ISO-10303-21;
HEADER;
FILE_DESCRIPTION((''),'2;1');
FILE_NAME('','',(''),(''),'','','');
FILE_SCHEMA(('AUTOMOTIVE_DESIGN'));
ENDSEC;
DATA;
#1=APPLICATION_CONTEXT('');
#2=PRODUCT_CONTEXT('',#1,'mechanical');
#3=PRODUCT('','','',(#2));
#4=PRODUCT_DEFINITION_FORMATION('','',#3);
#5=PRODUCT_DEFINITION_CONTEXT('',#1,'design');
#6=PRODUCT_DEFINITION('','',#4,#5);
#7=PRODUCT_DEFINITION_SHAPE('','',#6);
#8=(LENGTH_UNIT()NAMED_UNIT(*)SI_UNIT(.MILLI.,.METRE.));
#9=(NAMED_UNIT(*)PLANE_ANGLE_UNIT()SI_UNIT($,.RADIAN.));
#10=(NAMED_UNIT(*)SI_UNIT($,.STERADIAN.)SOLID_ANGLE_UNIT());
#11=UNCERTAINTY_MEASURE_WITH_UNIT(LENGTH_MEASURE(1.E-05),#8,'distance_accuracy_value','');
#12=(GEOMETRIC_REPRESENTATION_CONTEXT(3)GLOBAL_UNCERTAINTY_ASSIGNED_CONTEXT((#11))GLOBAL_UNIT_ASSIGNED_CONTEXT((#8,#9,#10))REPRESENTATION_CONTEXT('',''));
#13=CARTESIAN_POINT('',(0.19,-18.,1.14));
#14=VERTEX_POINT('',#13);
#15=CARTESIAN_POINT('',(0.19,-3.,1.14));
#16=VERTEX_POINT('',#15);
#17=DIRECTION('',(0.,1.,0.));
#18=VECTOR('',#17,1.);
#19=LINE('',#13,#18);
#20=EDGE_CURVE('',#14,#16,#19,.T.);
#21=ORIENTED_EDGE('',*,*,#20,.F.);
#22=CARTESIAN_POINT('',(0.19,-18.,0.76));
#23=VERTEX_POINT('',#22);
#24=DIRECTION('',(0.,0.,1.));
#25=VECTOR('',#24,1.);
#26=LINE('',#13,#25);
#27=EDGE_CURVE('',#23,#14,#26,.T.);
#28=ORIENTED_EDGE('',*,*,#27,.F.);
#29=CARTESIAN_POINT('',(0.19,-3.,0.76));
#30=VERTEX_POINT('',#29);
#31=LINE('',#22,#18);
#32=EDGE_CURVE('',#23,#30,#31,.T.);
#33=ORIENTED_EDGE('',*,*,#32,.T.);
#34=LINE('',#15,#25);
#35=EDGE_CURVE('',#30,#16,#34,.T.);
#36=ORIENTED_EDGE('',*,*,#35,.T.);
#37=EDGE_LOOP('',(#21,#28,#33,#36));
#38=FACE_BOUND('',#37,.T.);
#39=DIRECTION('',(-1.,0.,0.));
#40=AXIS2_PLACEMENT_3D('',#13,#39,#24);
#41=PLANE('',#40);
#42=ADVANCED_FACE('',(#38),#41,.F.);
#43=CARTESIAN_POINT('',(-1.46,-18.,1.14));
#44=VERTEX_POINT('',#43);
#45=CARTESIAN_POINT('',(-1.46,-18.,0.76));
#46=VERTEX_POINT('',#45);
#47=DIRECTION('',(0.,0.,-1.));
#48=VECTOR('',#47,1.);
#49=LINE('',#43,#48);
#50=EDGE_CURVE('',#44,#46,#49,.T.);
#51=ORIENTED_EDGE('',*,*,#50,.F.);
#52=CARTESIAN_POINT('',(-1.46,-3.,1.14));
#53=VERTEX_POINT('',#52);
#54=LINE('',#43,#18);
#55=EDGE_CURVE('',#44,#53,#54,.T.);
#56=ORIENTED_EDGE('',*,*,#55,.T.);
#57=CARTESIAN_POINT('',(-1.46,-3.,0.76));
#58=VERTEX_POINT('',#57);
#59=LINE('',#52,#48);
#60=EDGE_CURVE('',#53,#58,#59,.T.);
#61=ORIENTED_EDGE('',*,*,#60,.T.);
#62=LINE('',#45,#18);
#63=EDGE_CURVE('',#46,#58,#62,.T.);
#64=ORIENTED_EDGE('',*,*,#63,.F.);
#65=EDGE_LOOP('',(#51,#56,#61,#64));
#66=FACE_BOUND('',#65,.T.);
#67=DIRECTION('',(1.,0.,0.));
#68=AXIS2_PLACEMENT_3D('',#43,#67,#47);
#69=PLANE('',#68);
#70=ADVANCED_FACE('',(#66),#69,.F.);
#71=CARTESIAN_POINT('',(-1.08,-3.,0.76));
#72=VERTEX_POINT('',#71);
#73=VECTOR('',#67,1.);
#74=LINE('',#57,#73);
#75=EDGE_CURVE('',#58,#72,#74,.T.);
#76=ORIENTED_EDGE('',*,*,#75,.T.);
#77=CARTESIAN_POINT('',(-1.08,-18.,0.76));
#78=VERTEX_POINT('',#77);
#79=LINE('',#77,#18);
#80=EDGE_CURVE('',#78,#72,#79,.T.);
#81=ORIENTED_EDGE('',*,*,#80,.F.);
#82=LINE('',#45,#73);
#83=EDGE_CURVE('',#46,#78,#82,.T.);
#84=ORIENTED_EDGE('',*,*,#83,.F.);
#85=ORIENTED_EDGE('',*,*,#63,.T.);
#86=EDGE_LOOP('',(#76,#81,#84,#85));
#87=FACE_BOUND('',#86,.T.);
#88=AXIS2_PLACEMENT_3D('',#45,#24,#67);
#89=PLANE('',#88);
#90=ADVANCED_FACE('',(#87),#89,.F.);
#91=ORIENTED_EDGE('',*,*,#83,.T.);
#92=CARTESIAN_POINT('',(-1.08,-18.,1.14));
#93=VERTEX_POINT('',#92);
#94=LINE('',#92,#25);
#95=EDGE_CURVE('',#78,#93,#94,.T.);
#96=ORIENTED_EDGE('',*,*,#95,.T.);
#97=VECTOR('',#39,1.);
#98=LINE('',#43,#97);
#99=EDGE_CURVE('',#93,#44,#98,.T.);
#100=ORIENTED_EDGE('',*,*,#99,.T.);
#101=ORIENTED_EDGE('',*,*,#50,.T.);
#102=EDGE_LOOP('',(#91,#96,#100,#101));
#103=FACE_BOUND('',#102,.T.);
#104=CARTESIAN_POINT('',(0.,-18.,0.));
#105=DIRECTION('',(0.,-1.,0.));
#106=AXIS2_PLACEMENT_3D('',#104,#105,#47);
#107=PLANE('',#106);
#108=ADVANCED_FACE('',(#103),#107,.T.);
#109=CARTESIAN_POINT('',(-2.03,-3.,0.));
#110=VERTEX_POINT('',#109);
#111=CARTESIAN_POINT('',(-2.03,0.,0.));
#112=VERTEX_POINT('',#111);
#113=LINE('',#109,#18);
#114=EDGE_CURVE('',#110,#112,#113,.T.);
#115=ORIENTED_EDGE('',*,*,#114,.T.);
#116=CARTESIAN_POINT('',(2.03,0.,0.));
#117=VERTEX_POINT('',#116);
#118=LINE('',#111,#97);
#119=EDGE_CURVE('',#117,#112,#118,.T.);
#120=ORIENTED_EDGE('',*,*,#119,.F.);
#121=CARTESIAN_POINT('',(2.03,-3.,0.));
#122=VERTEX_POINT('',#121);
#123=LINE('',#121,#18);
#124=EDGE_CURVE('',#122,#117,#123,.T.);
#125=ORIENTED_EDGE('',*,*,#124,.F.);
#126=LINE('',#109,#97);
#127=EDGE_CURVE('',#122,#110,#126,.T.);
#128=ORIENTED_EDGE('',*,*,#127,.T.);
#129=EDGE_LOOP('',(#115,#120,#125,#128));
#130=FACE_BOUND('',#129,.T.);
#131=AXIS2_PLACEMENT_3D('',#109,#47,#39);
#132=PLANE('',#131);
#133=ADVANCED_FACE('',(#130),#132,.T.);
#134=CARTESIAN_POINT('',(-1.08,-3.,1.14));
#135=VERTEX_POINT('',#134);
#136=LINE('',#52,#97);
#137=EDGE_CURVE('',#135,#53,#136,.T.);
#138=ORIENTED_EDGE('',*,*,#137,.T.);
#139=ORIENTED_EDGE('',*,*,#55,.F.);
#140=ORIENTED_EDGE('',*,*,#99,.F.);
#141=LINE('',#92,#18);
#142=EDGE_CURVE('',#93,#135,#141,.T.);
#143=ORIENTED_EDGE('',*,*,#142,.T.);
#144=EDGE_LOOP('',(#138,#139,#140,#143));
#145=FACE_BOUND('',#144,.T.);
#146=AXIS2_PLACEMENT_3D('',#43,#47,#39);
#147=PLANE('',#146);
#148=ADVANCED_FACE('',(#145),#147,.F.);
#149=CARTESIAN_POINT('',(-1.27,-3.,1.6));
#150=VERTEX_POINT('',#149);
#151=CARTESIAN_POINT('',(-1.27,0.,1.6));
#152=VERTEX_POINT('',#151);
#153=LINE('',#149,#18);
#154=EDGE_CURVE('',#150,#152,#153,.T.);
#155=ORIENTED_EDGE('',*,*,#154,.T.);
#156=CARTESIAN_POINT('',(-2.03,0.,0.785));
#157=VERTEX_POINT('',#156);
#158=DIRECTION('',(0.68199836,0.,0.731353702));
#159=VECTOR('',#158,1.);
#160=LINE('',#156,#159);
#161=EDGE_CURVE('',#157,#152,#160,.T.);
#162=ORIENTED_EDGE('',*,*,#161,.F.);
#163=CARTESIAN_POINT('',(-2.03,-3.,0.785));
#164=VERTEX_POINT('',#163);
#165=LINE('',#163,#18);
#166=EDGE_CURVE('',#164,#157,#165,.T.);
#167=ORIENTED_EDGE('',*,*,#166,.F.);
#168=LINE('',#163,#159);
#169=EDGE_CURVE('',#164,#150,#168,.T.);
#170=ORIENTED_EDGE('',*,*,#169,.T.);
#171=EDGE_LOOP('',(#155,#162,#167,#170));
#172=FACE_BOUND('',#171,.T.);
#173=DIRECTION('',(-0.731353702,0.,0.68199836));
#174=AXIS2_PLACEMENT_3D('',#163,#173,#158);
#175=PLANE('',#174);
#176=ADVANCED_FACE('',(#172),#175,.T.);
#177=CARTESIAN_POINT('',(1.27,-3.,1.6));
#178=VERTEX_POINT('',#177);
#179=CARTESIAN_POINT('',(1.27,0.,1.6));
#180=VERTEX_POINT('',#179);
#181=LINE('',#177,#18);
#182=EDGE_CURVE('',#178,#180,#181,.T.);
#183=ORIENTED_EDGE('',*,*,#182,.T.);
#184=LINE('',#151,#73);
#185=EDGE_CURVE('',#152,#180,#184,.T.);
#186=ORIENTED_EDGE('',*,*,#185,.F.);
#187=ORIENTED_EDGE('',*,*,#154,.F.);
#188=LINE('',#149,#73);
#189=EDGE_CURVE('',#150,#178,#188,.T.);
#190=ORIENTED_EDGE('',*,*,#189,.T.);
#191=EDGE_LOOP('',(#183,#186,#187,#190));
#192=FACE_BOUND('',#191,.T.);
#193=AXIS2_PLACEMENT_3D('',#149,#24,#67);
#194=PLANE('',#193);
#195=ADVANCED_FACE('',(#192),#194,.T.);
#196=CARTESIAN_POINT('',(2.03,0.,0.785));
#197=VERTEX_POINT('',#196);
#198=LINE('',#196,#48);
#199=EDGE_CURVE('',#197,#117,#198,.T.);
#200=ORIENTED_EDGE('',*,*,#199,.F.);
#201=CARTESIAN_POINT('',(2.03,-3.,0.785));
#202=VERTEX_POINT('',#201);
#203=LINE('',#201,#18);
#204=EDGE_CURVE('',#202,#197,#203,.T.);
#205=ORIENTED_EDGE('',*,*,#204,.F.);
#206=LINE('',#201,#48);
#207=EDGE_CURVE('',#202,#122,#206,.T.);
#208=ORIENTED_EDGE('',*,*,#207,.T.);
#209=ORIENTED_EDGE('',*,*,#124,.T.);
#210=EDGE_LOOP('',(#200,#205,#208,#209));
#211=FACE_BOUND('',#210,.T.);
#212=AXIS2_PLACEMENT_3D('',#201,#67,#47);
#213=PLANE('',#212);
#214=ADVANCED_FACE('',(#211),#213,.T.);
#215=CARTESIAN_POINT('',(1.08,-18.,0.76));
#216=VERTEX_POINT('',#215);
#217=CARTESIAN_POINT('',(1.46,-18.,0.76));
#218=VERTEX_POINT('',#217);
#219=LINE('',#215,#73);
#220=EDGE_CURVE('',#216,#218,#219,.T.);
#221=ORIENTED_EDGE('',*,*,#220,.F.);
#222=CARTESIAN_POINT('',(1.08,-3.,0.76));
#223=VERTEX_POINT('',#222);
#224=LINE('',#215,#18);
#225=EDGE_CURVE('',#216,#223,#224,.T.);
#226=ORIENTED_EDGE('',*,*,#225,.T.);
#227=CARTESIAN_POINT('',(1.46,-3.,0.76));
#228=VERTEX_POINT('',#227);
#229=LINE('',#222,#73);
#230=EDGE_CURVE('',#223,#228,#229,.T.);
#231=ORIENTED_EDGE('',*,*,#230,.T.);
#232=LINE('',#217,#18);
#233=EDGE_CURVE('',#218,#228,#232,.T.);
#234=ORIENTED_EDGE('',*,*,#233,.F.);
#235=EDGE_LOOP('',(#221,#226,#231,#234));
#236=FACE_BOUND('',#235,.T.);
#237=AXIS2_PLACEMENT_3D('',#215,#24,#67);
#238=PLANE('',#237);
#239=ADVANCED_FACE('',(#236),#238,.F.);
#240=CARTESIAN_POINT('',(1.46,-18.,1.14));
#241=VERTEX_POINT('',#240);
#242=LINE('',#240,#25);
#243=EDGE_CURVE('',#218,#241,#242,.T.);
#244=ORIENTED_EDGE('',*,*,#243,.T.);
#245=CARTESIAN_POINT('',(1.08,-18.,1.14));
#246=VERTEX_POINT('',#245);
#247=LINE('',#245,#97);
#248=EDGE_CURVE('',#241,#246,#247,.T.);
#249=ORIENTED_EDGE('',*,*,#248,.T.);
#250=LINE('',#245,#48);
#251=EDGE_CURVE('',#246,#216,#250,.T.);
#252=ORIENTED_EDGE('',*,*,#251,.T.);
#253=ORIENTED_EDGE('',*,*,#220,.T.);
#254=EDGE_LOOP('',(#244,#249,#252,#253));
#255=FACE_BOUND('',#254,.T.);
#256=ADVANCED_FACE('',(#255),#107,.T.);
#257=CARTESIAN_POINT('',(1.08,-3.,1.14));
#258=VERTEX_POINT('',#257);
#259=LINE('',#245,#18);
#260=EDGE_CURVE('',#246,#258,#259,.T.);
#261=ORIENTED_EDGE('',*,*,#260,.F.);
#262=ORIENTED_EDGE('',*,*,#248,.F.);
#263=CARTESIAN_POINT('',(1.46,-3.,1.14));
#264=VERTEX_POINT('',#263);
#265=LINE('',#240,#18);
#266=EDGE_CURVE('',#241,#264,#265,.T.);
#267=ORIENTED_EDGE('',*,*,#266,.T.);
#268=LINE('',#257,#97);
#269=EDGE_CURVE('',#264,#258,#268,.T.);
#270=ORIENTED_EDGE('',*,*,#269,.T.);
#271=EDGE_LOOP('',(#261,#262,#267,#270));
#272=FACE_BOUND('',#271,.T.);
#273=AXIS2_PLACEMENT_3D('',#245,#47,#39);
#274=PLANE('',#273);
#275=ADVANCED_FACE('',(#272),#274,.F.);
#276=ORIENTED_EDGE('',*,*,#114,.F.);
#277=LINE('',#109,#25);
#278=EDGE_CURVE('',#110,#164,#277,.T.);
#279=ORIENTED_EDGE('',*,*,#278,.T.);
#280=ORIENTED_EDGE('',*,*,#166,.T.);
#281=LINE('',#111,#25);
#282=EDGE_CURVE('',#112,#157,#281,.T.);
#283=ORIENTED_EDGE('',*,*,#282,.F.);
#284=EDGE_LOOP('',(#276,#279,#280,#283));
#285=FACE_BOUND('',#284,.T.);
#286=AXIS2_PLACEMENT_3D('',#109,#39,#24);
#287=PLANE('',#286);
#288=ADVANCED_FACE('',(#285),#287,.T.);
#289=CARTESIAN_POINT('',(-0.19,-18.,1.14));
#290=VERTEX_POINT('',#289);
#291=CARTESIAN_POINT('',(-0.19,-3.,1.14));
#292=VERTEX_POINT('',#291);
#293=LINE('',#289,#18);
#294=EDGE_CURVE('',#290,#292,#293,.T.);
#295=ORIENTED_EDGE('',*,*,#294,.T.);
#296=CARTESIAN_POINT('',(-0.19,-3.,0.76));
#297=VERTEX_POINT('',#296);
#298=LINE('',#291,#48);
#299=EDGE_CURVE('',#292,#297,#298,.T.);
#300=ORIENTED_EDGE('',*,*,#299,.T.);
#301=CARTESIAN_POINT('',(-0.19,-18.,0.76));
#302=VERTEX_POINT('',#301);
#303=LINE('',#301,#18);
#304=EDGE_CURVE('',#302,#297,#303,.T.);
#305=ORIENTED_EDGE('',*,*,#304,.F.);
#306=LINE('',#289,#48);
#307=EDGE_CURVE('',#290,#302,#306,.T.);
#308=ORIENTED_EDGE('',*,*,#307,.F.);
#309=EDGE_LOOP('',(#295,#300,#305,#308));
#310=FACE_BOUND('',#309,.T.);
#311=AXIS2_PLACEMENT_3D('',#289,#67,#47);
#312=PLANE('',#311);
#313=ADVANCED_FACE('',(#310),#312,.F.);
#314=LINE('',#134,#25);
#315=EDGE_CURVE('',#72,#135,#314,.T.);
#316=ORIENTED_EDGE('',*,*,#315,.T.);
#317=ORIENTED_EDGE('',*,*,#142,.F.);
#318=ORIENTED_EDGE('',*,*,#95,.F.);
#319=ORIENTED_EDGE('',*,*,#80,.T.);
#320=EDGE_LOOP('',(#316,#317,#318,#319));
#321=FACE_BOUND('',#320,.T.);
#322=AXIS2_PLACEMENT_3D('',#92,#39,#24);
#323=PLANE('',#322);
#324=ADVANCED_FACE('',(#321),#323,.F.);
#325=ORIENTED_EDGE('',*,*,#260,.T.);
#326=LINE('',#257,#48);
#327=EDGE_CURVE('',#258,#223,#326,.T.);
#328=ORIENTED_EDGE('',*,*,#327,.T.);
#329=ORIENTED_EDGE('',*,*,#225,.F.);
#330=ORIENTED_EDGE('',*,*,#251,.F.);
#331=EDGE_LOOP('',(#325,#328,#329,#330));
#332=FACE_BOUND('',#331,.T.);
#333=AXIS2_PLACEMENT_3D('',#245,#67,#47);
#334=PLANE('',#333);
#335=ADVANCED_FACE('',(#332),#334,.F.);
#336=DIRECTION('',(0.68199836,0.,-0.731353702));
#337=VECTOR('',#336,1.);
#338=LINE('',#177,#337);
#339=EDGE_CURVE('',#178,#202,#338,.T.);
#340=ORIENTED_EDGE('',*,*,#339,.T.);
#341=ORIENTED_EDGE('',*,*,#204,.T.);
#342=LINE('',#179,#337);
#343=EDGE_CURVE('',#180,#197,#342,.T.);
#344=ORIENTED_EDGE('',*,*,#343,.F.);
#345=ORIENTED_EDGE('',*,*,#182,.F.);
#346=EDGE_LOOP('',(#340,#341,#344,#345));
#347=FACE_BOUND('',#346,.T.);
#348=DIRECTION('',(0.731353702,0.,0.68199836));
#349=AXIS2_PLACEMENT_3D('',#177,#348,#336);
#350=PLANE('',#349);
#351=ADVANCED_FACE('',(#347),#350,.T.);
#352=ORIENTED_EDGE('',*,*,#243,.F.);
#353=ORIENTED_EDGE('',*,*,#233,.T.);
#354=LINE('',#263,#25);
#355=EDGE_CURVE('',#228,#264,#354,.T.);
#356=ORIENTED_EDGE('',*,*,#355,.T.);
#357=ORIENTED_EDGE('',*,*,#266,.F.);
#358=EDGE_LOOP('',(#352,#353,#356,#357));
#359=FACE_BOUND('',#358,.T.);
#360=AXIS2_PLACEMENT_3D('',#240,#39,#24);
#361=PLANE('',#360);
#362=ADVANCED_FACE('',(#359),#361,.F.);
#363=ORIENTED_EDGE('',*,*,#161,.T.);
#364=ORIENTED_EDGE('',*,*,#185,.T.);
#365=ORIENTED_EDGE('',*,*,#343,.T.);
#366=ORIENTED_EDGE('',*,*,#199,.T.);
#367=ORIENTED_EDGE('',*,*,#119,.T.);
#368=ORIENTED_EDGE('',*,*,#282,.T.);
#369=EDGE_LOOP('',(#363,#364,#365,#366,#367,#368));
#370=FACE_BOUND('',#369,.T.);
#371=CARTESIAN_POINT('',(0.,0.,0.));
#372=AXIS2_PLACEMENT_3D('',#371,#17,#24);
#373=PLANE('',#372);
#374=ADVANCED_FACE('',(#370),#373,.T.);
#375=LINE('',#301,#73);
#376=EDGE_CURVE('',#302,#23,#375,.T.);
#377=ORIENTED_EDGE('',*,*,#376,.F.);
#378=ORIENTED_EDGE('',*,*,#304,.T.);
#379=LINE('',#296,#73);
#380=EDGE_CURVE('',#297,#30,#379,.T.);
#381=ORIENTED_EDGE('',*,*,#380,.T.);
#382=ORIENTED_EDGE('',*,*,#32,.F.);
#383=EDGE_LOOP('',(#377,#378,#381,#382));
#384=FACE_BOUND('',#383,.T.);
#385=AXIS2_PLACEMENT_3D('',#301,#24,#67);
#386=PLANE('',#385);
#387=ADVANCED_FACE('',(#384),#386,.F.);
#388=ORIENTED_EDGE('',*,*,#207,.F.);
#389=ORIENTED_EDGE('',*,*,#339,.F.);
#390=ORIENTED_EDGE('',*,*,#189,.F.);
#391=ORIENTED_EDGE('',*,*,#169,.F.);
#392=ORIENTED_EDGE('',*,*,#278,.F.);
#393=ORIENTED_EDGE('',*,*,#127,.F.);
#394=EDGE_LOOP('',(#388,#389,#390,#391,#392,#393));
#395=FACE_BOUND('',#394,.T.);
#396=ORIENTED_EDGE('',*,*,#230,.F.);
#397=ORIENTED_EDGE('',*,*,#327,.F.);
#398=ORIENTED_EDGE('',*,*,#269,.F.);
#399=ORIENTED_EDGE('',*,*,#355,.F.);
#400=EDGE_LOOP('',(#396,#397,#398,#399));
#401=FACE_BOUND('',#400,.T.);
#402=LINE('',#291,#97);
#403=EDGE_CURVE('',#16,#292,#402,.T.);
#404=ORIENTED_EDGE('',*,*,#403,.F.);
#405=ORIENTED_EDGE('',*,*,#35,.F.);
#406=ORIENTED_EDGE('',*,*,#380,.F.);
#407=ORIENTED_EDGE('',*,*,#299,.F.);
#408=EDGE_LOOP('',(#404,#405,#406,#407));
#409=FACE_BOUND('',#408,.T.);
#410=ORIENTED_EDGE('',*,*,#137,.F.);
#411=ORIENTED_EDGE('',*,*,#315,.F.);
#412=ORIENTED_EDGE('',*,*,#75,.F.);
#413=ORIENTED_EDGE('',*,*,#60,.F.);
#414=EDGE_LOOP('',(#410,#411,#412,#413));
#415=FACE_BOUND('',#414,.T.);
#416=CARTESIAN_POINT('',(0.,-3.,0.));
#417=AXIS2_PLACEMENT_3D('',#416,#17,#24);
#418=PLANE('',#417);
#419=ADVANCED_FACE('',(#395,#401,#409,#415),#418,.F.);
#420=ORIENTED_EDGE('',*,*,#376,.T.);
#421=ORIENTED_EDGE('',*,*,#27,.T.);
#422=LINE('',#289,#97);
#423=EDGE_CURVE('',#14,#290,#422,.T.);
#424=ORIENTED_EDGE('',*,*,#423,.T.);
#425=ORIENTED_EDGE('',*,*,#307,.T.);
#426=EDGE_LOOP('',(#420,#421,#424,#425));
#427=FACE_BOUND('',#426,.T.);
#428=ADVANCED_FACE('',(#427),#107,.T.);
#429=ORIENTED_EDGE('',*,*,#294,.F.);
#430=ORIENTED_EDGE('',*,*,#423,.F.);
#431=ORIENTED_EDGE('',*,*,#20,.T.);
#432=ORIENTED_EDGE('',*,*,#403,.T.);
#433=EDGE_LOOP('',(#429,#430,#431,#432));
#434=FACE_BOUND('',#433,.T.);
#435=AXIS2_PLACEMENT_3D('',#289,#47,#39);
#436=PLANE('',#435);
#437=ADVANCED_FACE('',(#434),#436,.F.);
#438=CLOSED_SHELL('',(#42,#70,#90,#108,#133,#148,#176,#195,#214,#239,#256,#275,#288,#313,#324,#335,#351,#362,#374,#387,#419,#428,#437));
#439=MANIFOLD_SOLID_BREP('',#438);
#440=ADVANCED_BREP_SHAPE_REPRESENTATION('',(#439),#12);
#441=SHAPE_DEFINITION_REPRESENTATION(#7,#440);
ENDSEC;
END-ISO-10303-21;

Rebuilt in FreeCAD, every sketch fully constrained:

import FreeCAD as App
import Part
import Sketcher
from FreeCAD import Vector
Q = App.Units.Quantity

doc = App.newDocument("Part")
body = doc.addObject("PartDesign::Body", "Body")

# Sketch on XZ plane
sketch1 = doc.addObject("Sketcher::SketchObject", "Sketch")
body.addObject(sketch1)
sketch1.AttachmentSupport = (doc.XZ_Plane, [""])
sketch1.MapMode = "FlatFace"
sketch1.addGeometry(Part.LineSegment(Vector(2.03, 0, 0), Vector(-2.03, 0, 0)), False)
sketch1.addGeometry(Part.LineSegment(Vector(-2.03, 0, 0), Vector(-2.03, 0.785, 0)), False)
sketch1.addGeometry(Part.LineSegment(Vector(-2.03, 0.785, 0), Vector(-1.27, 1.6, 0)), False)
sketch1.addGeometry(Part.LineSegment(Vector(-1.27, 1.6, 0), Vector(1.27, 1.6, 0)), False)
sketch1.addGeometry(Part.LineSegment(Vector(1.27, 1.6, 0), Vector(2.03, 0.785, 0)), False)
sketch1.addGeometry(Part.LineSegment(Vector(2.03, 0.785, 0), Vector(2.03, 0, 0)), False)
sketch1.addConstraint(Sketcher.Constraint("Coincident", 0, 2, 1, 1))
sketch1.addConstraint(Sketcher.Constraint("Coincident", 1, 2, 2, 1))
sketch1.addConstraint(Sketcher.Constraint("Coincident", 2, 2, 3, 1))
sketch1.addConstraint(Sketcher.Constraint("Coincident", 3, 2, 4, 1))
sketch1.addConstraint(Sketcher.Constraint("Coincident", 4, 2, 5, 1))
sketch1.addConstraint(Sketcher.Constraint("Coincident", 5, 2, 0, 1))
sketch1.addConstraint(Sketcher.Constraint("Horizontal", 0))
sketch1.addConstraint(Sketcher.Constraint("Vertical", 1))
sketch1.addConstraint(Sketcher.Constraint("Horizontal", 3))
sketch1.addConstraint(Sketcher.Constraint("Vertical", 5))
sketch1.addConstraint(Sketcher.Constraint("Symmetric", 0, 2, 5, 2, -1, 1))
sketch1.addConstraint(Sketcher.Constraint("Horizontal", 1, 2, 4, 2))
sketch1.addConstraint(Sketcher.Constraint("Equal", 2, 4))
sketch1.addConstraint(Sketcher.Constraint("Angle", 2, Q("47 deg")))
sketch1.addConstraint(Sketcher.Constraint("DistanceX", 0, 2, 0, 1, 4.06))
sketch1.addConstraint(Sketcher.Constraint("DistanceX", 3, 1, 3, 2, 2.54))
sketch1.addConstraint(Sketcher.Constraint("DistanceY", -1, 1, 2, 2, 1.6))
pad1 = doc.addObject("PartDesign::Pad", "Pad")
body.addObject(pad1)
pad1.Profile = sketch1
pad1.Length = 3

# Sketch on XZ plane
sketch2 = doc.addObject("Sketcher::SketchObject", "Sketch001")
body.addObject(sketch2)
sketch2.AttachmentSupport = (doc.XZ_Plane, [""])
sketch2.MapMode = "FlatFace"
sketch2.AttachmentOffset = App.Placement(Vector(0, 0, 3), App.Rotation())
sketch2.addGeometry(Part.LineSegment(Vector(-1.46, 1.14, 0), Vector(-1.46, 0.76, 0)), False)
sketch2.addGeometry(Part.LineSegment(Vector(-1.46, 0.76, 0), Vector(-1.08, 0.76, 0)), False)
sketch2.addGeometry(Part.LineSegment(Vector(-1.08, 0.76, 0), Vector(-1.08, 1.14, 0)), False)
sketch2.addGeometry(Part.LineSegment(Vector(-1.08, 1.14, 0), Vector(-1.46, 1.14, 0)), False)
sketch2.addGeometry(Part.LineSegment(Vector(-0.19, 1.14, 0), Vector(-0.19, 0.76, 0)), False)
sketch2.addGeometry(Part.LineSegment(Vector(-0.19, 0.76, 0), Vector(0.19, 0.76, 0)), False)
sketch2.addGeometry(Part.LineSegment(Vector(0.19, 0.76, 0), Vector(0.19, 1.14, 0)), False)
sketch2.addGeometry(Part.LineSegment(Vector(0.19, 1.14, 0), Vector(-0.19, 1.14, 0)), False)
sketch2.addGeometry(Part.LineSegment(Vector(1.08, 1.14, 0), Vector(1.08, 0.76, 0)), False)
sketch2.addGeometry(Part.LineSegment(Vector(1.08, 0.76, 0), Vector(1.46, 0.76, 0)), False)
sketch2.addGeometry(Part.LineSegment(Vector(1.46, 0.76, 0), Vector(1.46, 1.14, 0)), False)
sketch2.addGeometry(Part.LineSegment(Vector(1.46, 1.14, 0), Vector(1.08, 1.14, 0)), False)
sketch2.addConstraint(Sketcher.Constraint("Coincident", 0, 2, 1, 1))
sketch2.addConstraint(Sketcher.Constraint("Coincident", 1, 2, 2, 1))
sketch2.addConstraint(Sketcher.Constraint("Coincident", 2, 2, 3, 1))
sketch2.addConstraint(Sketcher.Constraint("Coincident", 3, 2, 0, 1))
sketch2.addConstraint(Sketcher.Constraint("Coincident", 4, 2, 5, 1))
sketch2.addConstraint(Sketcher.Constraint("Coincident", 5, 2, 6, 1))
sketch2.addConstraint(Sketcher.Constraint("Coincident", 6, 2, 7, 1))
sketch2.addConstraint(Sketcher.Constraint("Coincident", 7, 2, 4, 1))
sketch2.addConstraint(Sketcher.Constraint("Coincident", 8, 2, 9, 1))
sketch2.addConstraint(Sketcher.Constraint("Coincident", 9, 2, 10, 1))
sketch2.addConstraint(Sketcher.Constraint("Coincident", 10, 2, 11, 1))
sketch2.addConstraint(Sketcher.Constraint("Coincident", 11, 2, 8, 1))
sketch2.addConstraint(Sketcher.Constraint("Vertical", 0))
sketch2.addConstraint(Sketcher.Constraint("Horizontal", 1))
sketch2.addConstraint(Sketcher.Constraint("Vertical", 2))
sketch2.addConstraint(Sketcher.Constraint("Horizontal", 3))
sketch2.addConstraint(Sketcher.Constraint("Vertical", 4))
sketch2.addConstraint(Sketcher.Constraint("Horizontal", 5))
sketch2.addConstraint(Sketcher.Constraint("Vertical", 6))
sketch2.addConstraint(Sketcher.Constraint("Horizontal", 7))
sketch2.addConstraint(Sketcher.Constraint("Vertical", 8))
sketch2.addConstraint(Sketcher.Constraint("Horizontal", 9))
sketch2.addConstraint(Sketcher.Constraint("Vertical", 10))
sketch2.addConstraint(Sketcher.Constraint("Horizontal", 11))
sketch2.addConstraint(Sketcher.Constraint("Symmetric", 1, 2, 8, 2, -2))
sketch2.addConstraint(Sketcher.Constraint("Symmetric", 3, 2, 10, 2, -2))
sketch2.addConstraint(Sketcher.Constraint("Horizontal", 1, 2, 4, 2))
sketch2.addConstraint(Sketcher.Constraint("Horizontal", 3, 2, 6, 2))
sketch2.addConstraint(Sketcher.Constraint("Equal", 3, 5))
sketch2.addConstraint(Sketcher.Constraint("Equal", 11, 0))
sketch2.addConstraint(Sketcher.Constraint("DistanceX", 1, 1, 1, 2, 0.38))
sketch2.addConstraint(Sketcher.Constraint("DistanceX", 0, 2, -1, 1, 1.46))
sketch2.addConstraint(Sketcher.Constraint("DistanceY", -1, 1, 0, 2, 0.76))
sketch2.addConstraint(Sketcher.Constraint("DistanceX", 4, 2, -1, 1, 0.19))
pad2 = doc.addObject("PartDesign::Pad", "Pad001")
body.addObject(pad2)
pad2.Profile = sketch2
pad2.Length = 15

doc.recompute()
